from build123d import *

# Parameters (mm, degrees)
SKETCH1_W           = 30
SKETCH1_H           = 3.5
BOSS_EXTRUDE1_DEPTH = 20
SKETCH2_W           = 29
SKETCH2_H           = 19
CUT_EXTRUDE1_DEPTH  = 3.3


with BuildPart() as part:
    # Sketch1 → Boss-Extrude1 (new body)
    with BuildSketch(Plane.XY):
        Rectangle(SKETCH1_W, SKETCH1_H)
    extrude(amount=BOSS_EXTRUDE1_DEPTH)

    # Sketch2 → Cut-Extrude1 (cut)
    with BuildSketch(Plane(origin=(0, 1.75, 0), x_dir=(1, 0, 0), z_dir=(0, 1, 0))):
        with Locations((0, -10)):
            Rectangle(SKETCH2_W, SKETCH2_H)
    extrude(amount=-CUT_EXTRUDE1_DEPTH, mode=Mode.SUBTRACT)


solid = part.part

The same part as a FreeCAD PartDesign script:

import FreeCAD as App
import Part
import Sketcher

V = App.Vector


def add_polygon(sketch, points):
    """Adds a closed chain of lines whose ends are joined by coincident constraints."""
    first, n = sketch.GeometryCount, len(points)
    for a, b in zip(points, points[1:] + points[:1]):
        sketch.addGeometry(Part.LineSegment(App.Vector(*a, 0), App.Vector(*b, 0)), False)
    for i in range(n):
        sketch.addConstraint(Sketcher.Constraint("Coincident", first + i, 2, first + (i + 1) % n, 1))

doc = App.newDocument("Part")
body = doc.addObject("PartDesign::Body", "Body")

sketch1 = body.newObject("Sketcher::SketchObject", "Sketch")
sketch1.AttachmentSupport = (doc.getObject("XY_Plane"), [""])
sketch1.MapMode = "FlatFace"
add_polygon(sketch1, [(-15, 1.75), (-15, -1.75), (15, -1.75), (15, 1.75)])
sketch1.addConstraint([
    Sketcher.Constraint("Vertical", 0),
    Sketcher.Constraint("Horizontal", 1),
    Sketcher.Constraint("Vertical", 2),
    Sketcher.Constraint("Horizontal", 3),
    Sketcher.Constraint("Symmetric", 0, 2, 2, 2, -1, 1),
    Sketcher.Constraint("DistanceX", 1, 1, 1, 2, 30.0),
    Sketcher.Constraint("DistanceY", 0, 2, 0, 1, 3.5),
])
pad1 = body.newObject("PartDesign::Pad", "Pad")
pad1.Profile = sketch1
pad1.Length = 20

sketch2 = body.newObject("Sketcher::SketchObject", "Sketch001")
sketch2.AttachmentSupport = (doc.getObject("XZ_Plane"), [""])
sketch2.MapMode = "FlatFace"
sketch2.AttachmentOffset = App.Placement(V(0, 0, -1.75), App.Rotation())
add_polygon(sketch2, [(-14.5, 0.5), (-14.5, 19.5), (14.5, 19.5), (14.5, 0.5)])
sketch2.addConstraint([
    Sketcher.Constraint("Vertical", 0),
    Sketcher.Constraint("Horizontal", 1),
    Sketcher.Constraint("Vertical", 2),
    Sketcher.Constraint("Horizontal", 3),
    Sketcher.Constraint("DistanceX", 1, 1, 1, 2, 29.0),
    Sketcher.Constraint("DistanceY", 0, 1, 0, 2, 19.0),
    Sketcher.Constraint("DistanceX", 0, 2, -1, 1, 14.5),
    Sketcher.Constraint("DistanceY", -1, 1, 0, 2, 19.5),
])
pocket1 = body.newObject("PartDesign::Pocket", "Pocket")
pocket1.Profile = sketch2
pocket1.Length = 3.3
pocket1.Reversed = True

doc.recompute()
